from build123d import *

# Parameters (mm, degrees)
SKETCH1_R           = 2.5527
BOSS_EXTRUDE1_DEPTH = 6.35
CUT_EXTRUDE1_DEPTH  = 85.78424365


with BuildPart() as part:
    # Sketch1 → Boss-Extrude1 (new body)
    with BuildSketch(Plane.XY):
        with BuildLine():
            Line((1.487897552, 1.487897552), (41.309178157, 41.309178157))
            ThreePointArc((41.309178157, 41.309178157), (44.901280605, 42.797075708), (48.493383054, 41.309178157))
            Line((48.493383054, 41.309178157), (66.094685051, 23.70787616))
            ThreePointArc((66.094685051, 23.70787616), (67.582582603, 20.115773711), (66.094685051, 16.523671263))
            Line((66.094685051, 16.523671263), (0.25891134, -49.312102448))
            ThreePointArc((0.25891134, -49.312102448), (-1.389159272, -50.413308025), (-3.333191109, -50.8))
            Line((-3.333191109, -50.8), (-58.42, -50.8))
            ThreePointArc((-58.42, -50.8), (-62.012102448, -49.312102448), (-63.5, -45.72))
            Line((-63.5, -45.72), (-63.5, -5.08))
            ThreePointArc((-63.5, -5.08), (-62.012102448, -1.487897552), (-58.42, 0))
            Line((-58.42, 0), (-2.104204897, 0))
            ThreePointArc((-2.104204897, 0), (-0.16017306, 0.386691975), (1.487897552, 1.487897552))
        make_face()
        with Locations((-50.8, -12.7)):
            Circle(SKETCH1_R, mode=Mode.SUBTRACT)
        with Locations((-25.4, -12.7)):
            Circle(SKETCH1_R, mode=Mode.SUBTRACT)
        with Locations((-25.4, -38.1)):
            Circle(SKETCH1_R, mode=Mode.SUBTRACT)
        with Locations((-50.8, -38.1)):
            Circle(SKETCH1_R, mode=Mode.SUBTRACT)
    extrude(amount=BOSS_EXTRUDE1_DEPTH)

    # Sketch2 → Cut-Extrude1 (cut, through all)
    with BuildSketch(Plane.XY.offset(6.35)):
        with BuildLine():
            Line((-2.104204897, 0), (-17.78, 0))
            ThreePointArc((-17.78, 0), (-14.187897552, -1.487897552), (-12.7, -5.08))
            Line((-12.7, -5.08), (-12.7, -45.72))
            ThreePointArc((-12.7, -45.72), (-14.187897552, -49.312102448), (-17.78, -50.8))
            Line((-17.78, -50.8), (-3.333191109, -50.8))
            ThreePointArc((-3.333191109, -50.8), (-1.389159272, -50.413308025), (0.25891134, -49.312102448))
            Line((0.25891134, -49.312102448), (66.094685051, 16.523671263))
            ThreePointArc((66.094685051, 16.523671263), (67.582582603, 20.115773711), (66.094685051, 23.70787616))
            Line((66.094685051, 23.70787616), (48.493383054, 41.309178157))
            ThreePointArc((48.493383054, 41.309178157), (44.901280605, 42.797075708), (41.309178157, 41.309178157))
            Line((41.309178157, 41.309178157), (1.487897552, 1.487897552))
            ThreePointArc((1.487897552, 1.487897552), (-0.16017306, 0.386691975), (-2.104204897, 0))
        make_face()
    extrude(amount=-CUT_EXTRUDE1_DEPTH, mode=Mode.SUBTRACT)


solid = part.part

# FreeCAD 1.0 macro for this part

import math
import FreeCAD as App
import Part
import Sketcher
from FreeCAD import Vector
Q = App.Units.Quantity

doc = App.newDocument("Part")
body = doc.addObject("PartDesign::Body", "Body")

# Sketch on XY plane
sketch1 = doc.addObject("Sketcher::SketchObject", "Sketch")
body.addObject(sketch1)
sketch1.AttachmentSupport = (doc.XY_Plane, [""])
sketch1.MapMode = "FlatFace"
sketch1.addGeometry([
    Part.LineSegment(Vector(41.3, 41.3, 0), Vector(1.5, 1.5, 0)),  # 0
    Part.ArcOfCircle(Part.Circle(Vector(-2.1, 5.1, 0), Vector(0, 0, 1), 5.1), math.radians(-90), math.radians(-45)),  # 1
    Part.LineSegment(Vector(-2.1, 0, 0), Vector(-58.4, 0, 0)),  # 2
    Part.ArcOfCircle(Part.Circle(Vector(-58.4, -5.1, 0), Vector(0, 0, 1), 5.1), math.radians(90), math.radians(180)),  # 3
    Part.LineSegment(Vector(-63.5, -5.1, 0), Vector(-63.5, -45.7, 0)),  # 4
    Part.ArcOfCircle(Part.Circle(Vector(-58.4, -45.7, 0), Vector(0, 0, 1), 5.1), math.radians(-180), math.radians(-90)),  # 5
    Part.LineSegment(Vector(-58.4, -50.8, 0), Vector(-3.3, -50.8, 0)),  # 6
    Part.ArcOfCircle(Part.Circle(Vector(-3.3, -45.7, 0), Vector(0, 0, 1), 5.1), math.radians(-90), math.radians(-45)),  # 7
    Part.LineSegment(Vector(0.3, -49.3, 0), Vector(66.1, 16.5, 0)),  # 8
    Part.ArcOfCircle(Part.Circle(Vector(62.5, 20.1, 0), Vector(0, 0, 1), 5.1), math.radians(-45), math.radians(45)),  # 9
    Part.LineSegment(Vector(66.1, 23.7, 0), Vector(48.5, 41.3, 0)),  # 10
    Part.ArcOfCircle(Part.Circle(Vector(44.9, 37.7, 0), Vector(0, 0, 1), 5.1), math.radians(45), math.radians(135)),  # 11
    Part.Circle(Vector(-25.4, -38.1, 0), Vector(0, 0, 1), 2.6),  # 12
    Part.Circle(Vector(-50.8, -38.1, 0), Vector(0, 0, 1), 2.6),  # 13
    Part.Circle(Vector(-25.4, -12.7, 0), Vector(0, 0, 1), 2.6),  # 14
    Part.Circle(Vector(-50.8, -12.7, 0), Vector(0, 0, 1), 2.6),  # 15
], False)
sketch1.addConstraint([
    Sketcher.Constraint("Tangent", 0, 2, 1, 2),
    Sketcher.Constraint("Tangent", 1, 1, 2, 1),
    Sketcher.Constraint("Tangent", 2, 2, 3, 1),
    Sketcher.Constraint("Tangent", 3, 2, 4, 1),
    Sketcher.Constraint("Tangent", 4, 2, 5, 1),
    Sketcher.Constraint("Tangent", 5, 2, 6, 1),
    Sketcher.Constraint("Tangent", 6, 2, 7, 1),
    Sketcher.Constraint("Tangent", 7, 2, 8, 1),
    Sketcher.Constraint("Tangent", 8, 2, 9, 1),
    Sketcher.Constraint("Tangent", 9, 2, 10, 1),
    Sketcher.Constraint("Tangent", 10, 2, 11, 1),
    Sketcher.Constraint("Tangent", 11, 2, 0, 1),
    Sketcher.Constraint("Horizontal", 2),
    Sketcher.Constraint("Vertical", 4),
    Sketcher.Constraint("Horizontal", 6),
    Sketcher.Constraint("Equal", 1, 3),
    Sketcher.Constraint("Equal", 3, 5),
    Sketcher.Constraint("Equal", 5, 7),
    Sketcher.Constraint("Equal", 7, 9),
    Sketcher.Constraint("Equal", 9, 11),
    Sketcher.Constraint("Equal", 12, 13),
    Sketcher.Constraint("Equal", 13, 14),
    Sketcher.Constraint("Equal", 14, 15),
    Sketcher.Constraint("PointOnObject", 1, 1, -1),
    Sketcher.Constraint("Parallel", 0, 8),
    Sketcher.Constraint("Perpendicular", 8, 10),
    Sketcher.Constraint("Horizontal", 12, 3, 13, 3),
    Sketcher.Constraint("Horizontal", 14, 3, 15, 3),
    Sketcher.Constraint("Horizontal", 10, 2, 11, 2),
    Sketcher.Constraint("Vertical", 12, 3, 14, 3),
    Sketcher.Constraint("Vertical", 13, 3, 15, 3),
    Sketcher.Constraint("Radius", 1, Q("0.2 in")),
    Sketcher.Constraint("Diameter", 12, Q("0.201 in")),
    Sketcher.Constraint("DistanceY", 4, 2, 4, 1, Q("1.6 in")),
    Sketcher.Constraint("DistanceX", 12, 3, -1, 1, Q("1 in")),
    Sketcher.Constraint("DistanceX", 13, 3, -1, 1, Q("2 in")),
    Sketcher.Constraint("DistanceY", 12, 3, 14, 3, Q("1 in")),
    Sketcher.Constraint("DistanceX", 3, 3, -1, 1, Q("2.3 in")),
    Sketcher.Constraint("DistanceY", 12, 3, -1, 1, Q("1.5 in")),
    Sketcher.Constraint("Distance", 10, Q("0.98 in")),
    Sketcher.Constraint("DistanceX", 6, 1, 6, 2, 55.086809),
    Sketcher.Constraint("DistanceX", -1, 1, 11, 3, 44.901281),
])
pad1 = doc.addObject("PartDesign::Pad", "Pad")
body.addObject(pad1)
pad1.Profile = sketch1
pad1.Length = Q("0.25 in")

# Sketch on XY plane
sketch2 = doc.addObject("Sketcher::SketchObject", "Sketch001")
body.addObject(sketch2)
sketch2.AttachmentSupport = (doc.XY_Plane, [""])
sketch2.MapMode = "FlatFace"
sketch2.AttachmentOffset = App.Placement(Vector(0, 0, 0.25 * 25.4), App.Rotation())
sketch2.addGeometry([
    Part.LineSegment(Vector(-2.1, 0, 0), Vector(-17.8, 0, 0)),  # 0
    Part.ArcOfCircle(Part.Circle(Vector(-17.8, -5.1, 0), Vector(0, 0, 1), 5.1), math.radians(0), math.radians(90)),  # 1
    Part.LineSegment(Vector(-12.7, -5.1, 0), Vector(-12.7, -45.7, 0)),  # 2
    Part.ArcOfCircle(Part.Circle(Vector(-17.8, -45.7, 0), Vector(0, 0, 1), 5.1), math.radians(-90), math.radians(0)),  # 3
    Part.LineSegment(Vector(-17.8, -50.8, 0), Vector(-3.3, -50.8, 0)),  # 4
    Part.ArcOfCircle(Part.Circle(Vector(-3.3, -45.7, 0), Vector(0, 0, 1), 5.1), math.radians(-90), math.radians(-45)),  # 5
    Part.LineSegment(Vector(0.3, -49.3, 0), Vector(66.1, 16.5, 0)),  # 6
    Part.ArcOfCircle(Part.Circle(Vector(62.5, 20.1, 0), Vector(0, 0, 1), 5.1), math.radians(-45), math.radians(45)),  # 7
    Part.LineSegment(Vector(66.1, 23.7, 0), Vector(48.5, 41.3, 0)),  # 8
    Part.ArcOfCircle(Part.Circle(Vector(44.9, 37.7, 0), Vector(0, 0, 1), 5.1), math.radians(45), math.radians(135)),  # 9
    Part.LineSegment(Vector(41.3, 41.3, 0), Vector(1.5, 1.5, 0)),  # 10
    Part.ArcOfCircle(Part.Circle(Vector(-2.1, 5.1, 0), Vector(0, 0, 1), 5.1), math.radians(-90), math.radians(-45)),  # 11
], False)
sketch2.addConstraint([
    Sketcher.Constraint("Tangent", 0, 2, 1, 2),
    Sketcher.Constraint("Tangent", 1, 1, 2, 1),
    Sketcher.Constraint("Tangent", 2, 2, 3, 2),
    Sketcher.Constraint("Tangent", 3, 1, 4, 1),
    Sketcher.Constraint("Tangent", 4, 2, 5, 1),
    Sketcher.Constraint("Tangent", 5, 2, 6, 1),
    Sketcher.Constraint("Tangent", 6, 2, 7, 1),
    Sketcher.Constraint("Tangent", 7, 2, 8, 1),
    Sketcher.Constraint("Tangent", 8, 2, 9, 1),
    Sketcher.Constraint("Tangent", 9, 2, 10, 1),
    Sketcher.Constraint("Tangent", 10, 2, 11, 2),
    Sketcher.Constraint("Tangent", 11, 1, 0, 1),
    Sketcher.Constraint("Horizontal", 0),
    Sketcher.Constraint("Vertical", 2),
    Sketcher.Constraint("Horizontal", 4),
    Sketcher.Constraint("Equal", 1, 3),
    Sketcher.Constraint("Equal", 3, 5),
    Sketcher.Constraint("Equal", 5, 7),
    Sketcher.Constraint("Equal", 7, 9),
    Sketcher.Constraint("Equal", 9, 11),
    Sketcher.Constraint("PointOnObject", 0, 2, -1),
    Sketcher.Constraint("Perpendicular", 6, 8),
    Sketcher.Constraint("Perpendicular", 8, 10),
    Sketcher.Constraint("Horizontal", 8, 2, 9, 2),
    Sketcher.Constraint("Radius", 1, Q("0.2 in")),
    Sketcher.Constraint("DistanceY", 2, 2, 2, 1, Q("1.6 in")),
    Sketcher.Constraint("DistanceX", 1, 3, -1, 1, Q("0.7 in")),
    Sketcher.Constraint("Distance", 8, Q("0.98 in")),
    Sketcher.Constraint("DistanceX", 4, 1, 4, 2, 14.446809),
    Sketcher.Constraint("DistanceX", -1, 1, 9, 3, 44.901281),
])
pocket1 = doc.addObject("PartDesign::Pocket", "Pocket")
body.addObject(pocket1)
pocket1.Profile = sketch2
pocket1.Type = "ThroughAll"

doc.recompute()
